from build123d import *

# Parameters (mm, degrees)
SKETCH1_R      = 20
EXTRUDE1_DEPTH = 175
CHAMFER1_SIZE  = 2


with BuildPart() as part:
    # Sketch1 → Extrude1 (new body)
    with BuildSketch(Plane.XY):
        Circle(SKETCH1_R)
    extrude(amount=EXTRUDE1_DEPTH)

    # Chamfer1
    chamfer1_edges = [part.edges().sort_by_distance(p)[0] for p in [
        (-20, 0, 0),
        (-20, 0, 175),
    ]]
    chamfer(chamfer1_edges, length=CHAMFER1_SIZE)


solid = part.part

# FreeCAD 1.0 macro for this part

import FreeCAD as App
import Part
import Sketcher
from FreeCAD import Vector
Q = App.Units.Quantity


def edges_at(feature, points):
    """Names of the edges that pass closest to the given points."""
    edges = feature.Shape.Edges
    near = lambda p: min(range(len(edges)), key=lambda i: edges[i].distToShape(Part.Vertex(*p))[0])
    return sorted({f"Edge{near(p) + 1}" for p in points})

doc = App.newDocument("Part")
body = doc.addObject("PartDesign::Body", "Body")

# Sketch on XY plane
sketch1 = doc.addObject("Sketcher::SketchObject", "Sketch")
body.addObject(sketch1)
sketch1.AttachmentSupport = (doc.XY_Plane, [""])
sketch1.MapMode = "FlatFace"
sketch1.addGeometry(Part.Circle(Vector(0, 0, 0), Vector(0, 0, 1), 20), False)
sketch1.addConstraint([
    Sketcher.Constraint("Coincident", 0, 3, -1, 1),
    Sketcher.Constraint("Diameter", 0, Q("40 mm")),
])
pad1 = doc.addObject("PartDesign::Pad", "Pad")
body.addObject(pad1)
pad1.Profile = sketch1
pad1.Length = 175
doc.recompute()

chamfer = doc.addObject("PartDesign::Chamfer", "Chamfer")
body.addObject(chamfer)
chamfer.Base = (pad1, edges_at(pad1, [(-20, 0, 0), (-20, 0, 175)]))
chamfer.Size = 2

doc.recompute()
